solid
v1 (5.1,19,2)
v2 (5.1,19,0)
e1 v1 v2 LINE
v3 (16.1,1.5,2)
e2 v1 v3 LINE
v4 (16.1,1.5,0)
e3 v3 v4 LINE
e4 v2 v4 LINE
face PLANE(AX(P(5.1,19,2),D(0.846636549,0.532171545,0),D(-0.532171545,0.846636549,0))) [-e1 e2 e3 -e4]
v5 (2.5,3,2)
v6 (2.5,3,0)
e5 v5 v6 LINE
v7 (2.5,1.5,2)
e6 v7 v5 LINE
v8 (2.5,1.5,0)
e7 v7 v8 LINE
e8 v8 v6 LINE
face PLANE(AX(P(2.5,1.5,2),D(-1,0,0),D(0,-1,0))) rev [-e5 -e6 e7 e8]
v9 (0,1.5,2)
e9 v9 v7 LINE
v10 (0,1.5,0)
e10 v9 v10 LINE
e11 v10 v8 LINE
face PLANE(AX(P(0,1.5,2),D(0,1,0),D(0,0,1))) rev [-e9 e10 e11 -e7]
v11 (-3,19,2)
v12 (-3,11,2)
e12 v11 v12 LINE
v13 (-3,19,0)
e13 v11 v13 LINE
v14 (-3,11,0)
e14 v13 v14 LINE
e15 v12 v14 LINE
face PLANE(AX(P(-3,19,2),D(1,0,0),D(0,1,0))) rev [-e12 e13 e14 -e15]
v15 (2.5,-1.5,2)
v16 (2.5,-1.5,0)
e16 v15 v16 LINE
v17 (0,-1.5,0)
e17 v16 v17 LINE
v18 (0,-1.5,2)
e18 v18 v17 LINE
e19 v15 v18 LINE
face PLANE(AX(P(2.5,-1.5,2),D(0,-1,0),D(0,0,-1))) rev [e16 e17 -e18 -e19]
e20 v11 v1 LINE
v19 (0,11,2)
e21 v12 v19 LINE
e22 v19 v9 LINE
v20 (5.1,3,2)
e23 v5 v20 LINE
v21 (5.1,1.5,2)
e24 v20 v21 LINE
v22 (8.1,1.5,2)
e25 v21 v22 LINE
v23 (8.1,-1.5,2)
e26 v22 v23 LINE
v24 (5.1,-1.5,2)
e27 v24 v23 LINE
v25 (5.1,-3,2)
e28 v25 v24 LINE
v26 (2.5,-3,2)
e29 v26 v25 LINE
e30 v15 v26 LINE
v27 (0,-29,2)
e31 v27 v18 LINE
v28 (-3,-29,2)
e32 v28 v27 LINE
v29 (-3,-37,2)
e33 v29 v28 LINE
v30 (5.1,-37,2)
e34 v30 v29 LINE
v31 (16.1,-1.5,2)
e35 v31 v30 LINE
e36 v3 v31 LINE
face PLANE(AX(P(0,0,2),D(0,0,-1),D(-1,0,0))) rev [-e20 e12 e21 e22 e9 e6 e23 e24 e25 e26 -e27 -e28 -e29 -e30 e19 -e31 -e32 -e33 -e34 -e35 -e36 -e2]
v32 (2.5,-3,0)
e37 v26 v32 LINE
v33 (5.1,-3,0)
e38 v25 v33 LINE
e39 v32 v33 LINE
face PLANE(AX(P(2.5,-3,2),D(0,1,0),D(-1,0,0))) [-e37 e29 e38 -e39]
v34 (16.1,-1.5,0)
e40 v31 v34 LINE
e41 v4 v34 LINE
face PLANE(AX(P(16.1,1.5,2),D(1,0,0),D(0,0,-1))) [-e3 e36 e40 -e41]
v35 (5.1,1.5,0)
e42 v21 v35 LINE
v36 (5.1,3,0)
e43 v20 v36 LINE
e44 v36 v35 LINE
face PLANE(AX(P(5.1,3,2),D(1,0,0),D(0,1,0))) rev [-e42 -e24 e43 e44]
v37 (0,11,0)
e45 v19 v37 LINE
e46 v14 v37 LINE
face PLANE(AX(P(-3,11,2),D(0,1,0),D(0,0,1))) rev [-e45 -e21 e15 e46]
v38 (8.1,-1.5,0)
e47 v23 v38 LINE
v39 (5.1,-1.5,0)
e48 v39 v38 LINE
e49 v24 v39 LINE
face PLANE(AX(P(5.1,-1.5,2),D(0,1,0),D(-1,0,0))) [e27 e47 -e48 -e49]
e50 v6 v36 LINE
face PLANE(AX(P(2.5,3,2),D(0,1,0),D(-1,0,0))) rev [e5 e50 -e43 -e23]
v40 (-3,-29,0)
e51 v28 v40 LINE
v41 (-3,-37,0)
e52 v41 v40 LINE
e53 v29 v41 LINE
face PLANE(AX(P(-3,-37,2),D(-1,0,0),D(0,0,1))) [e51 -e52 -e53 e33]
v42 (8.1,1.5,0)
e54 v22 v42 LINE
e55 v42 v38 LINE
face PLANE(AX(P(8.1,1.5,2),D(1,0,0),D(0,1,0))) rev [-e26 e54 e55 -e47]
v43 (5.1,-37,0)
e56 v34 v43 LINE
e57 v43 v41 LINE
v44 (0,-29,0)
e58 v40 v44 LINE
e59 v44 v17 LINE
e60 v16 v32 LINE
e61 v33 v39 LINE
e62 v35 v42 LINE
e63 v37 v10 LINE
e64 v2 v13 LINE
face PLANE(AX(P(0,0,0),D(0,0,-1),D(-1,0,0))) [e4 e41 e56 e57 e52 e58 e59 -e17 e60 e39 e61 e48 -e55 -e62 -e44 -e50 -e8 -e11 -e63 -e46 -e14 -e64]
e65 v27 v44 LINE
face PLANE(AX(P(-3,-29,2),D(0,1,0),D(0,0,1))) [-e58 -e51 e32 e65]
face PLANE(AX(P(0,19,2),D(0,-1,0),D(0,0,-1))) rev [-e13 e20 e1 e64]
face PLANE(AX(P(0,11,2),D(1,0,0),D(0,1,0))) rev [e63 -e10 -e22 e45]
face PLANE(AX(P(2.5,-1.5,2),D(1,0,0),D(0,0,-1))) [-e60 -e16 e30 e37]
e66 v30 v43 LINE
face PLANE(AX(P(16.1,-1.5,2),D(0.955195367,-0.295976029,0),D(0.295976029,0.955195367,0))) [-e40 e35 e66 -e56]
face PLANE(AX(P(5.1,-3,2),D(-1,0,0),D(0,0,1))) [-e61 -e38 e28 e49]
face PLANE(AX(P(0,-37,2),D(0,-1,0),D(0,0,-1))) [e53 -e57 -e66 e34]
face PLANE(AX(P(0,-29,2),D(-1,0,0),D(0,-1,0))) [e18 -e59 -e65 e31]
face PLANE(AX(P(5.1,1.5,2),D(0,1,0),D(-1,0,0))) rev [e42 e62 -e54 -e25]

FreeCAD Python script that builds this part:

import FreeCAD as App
import Part
import Sketcher
Q = App.Units.Quantity

doc = App.newDocument("Part")
body = doc.addObject("PartDesign::Body", "Body")

# Sketch on XY plane
sketch1 = body.newObject("Sketcher::SketchObject", "Sketch")
sketch1.AttachmentSupport = (doc.getObject("XY_Plane"), [""])
sketch1.MapMode = "FlatFace"
sketch1.addGeometry(Part.LineSegment(App.Vector(2.5, -3, 0), App.Vector(2.5, -1.5, 0)), False)
sketch1.addGeometry(Part.LineSegment(App.Vector(2.5, -1.5, 0), App.Vector(0, -1.5, 0)), False)
sketch1.addGeometry(Part.LineSegment(App.Vector(0, -1.5, 0), App.Vector(0, -29, 0)), False)
sketch1.addGeometry(Part.LineSegment(App.Vector(0, -29, 0), App.Vector(-3, -29, 0)), False)
sketch1.addGeometry(Part.LineSegment(App.Vector(-3, -29, 0), App.Vector(-3, -37, 0)), False)
sketch1.addGeometry(Part.LineSegment(App.Vector(-3, -37, 0), App.Vector(5.1, -37, 0)), False)
sketch1.addGeometry(Part.LineSegment(App.Vector(5.1, -37, 0), App.Vector(16.1, -1.5, 0)), False)
sketch1.addGeometry(Part.LineSegment(App.Vector(16.1, -1.5, 0), App.Vector(16.1, 1.5, 0)), False)
sketch1.addGeometry(Part.LineSegment(App.Vector(16.1, 1.5, 0), App.Vector(5.1, 19, 0)), False)
sketch1.addGeometry(Part.LineSegment(App.Vector(5.1, 19, 0), App.Vector(-3, 19, 0)), False)
sketch1.addGeometry(Part.LineSegment(App.Vector(-3, 19, 0), App.Vector(-3, 11, 0)), False)
sketch1.addGeometry(Part.LineSegment(App.Vector(-3, 11, 0), App.Vector(0, 11, 0)), False)
sketch1.addGeometry(Part.LineSegment(App.Vector(0, 11, 0), App.Vector(0, 1.5, 0)), False)
sketch1.addGeometry(Part.LineSegment(App.Vector(0, 1.5, 0), App.Vector(2.5, 1.5, 0)), False)
sketch1.addGeometry(Part.LineSegment(App.Vector(2.5, 1.5, 0), App.Vector(2.5, 3, 0)), False)
sketch1.addGeometry(Part.LineSegment(App.Vector(2.5, 3, 0), App.Vector(5.1, 3, 0)), False)
sketch1.addGeometry(Part.LineSegment(App.Vector(5.1, 3, 0), App.Vector(5.1, 1.5, 0)), False)
sketch1.addGeometry(Part.LineSegment(App.Vector(5.1, 1.5, 0), App.Vector(8.1, 1.5, 0)), False)
sketch1.addGeometry(Part.LineSegment(App.Vector(8.1, 1.5, 0), App.Vector(8.1, -1.5, 0)), False)
sketch1.addGeometry(Part.LineSegment(App.Vector(8.1, -1.5, 0), App.Vector(5.1, -1.5, 0)), False)
sketch1.addGeometry(Part.LineSegment(App.Vector(5.1, -1.5, 0), App.Vector(5.1, -3, 0)), False)
sketch1.addGeometry(Part.LineSegment(App.Vector(5.1, -3, 0), App.Vector(2.5, -3, 0)), False)
sketch1.addConstraint(Sketcher.Constraint("Coincident", 0, 2, 1, 1))
sketch1.addConstraint(Sketcher.Constraint("Coincident", 1, 2, 2, 1))
sketch1.addConstraint(Sketcher.Constraint("Coincident", 2, 2, 3, 1))
sketch1.addConstraint(Sketcher.Constraint("Coincident", 3, 2, 4, 1))
sketch1.addConstraint(Sketcher.Constraint("Coincident", 4, 2, 5, 1))
sketch1.addConstraint(Sketcher.Constraint("Coincident", 5, 2, 6, 1))
sketch1.addConstraint(Sketcher.Constraint("Coincident", 6, 2, 7, 1))
sketch1.addConstraint(Sketcher.Constraint("Coincident", 7, 2, 8, 1))
sketch1.addConstraint(Sketcher.Constraint("Coincident", 8, 2, 9, 1))
sketch1.addConstraint(Sketcher.Constraint("Coincident", 9, 2, 10, 1))
sketch1.addConstraint(Sketcher.Constraint("Coincident", 10, 2, 11, 1))
sketch1.addConstraint(Sketcher.Constraint("Coincident", 11, 2, 12, 1))
sketch1.addConstraint(Sketcher.Constraint("Coincident", 12, 2, 13, 1))
sketch1.addConstraint(Sketcher.Constraint("Coincident", 13, 2, 14, 1))
sketch1.addConstraint(Sketcher.Constraint("Coincident", 14, 2, 15, 1))
sketch1.addConstraint(Sketcher.Constraint("Coincident", 15, 2, 16, 1))
sketch1.addConstraint(Sketcher.Constraint("Coincident", 16, 2, 17, 1))
sketch1.addConstraint(Sketcher.Constraint("Coincident", 17, 2, 18, 1))
sketch1.addConstraint(Sketcher.Constraint("Coincident", 18, 2, 19, 1))
sketch1.addConstraint(Sketcher.Constraint("Coincident", 19, 2, 20, 1))
sketch1.addConstraint(Sketcher.Constraint("Coincident", 20, 2, 21, 1))
sketch1.addConstraint(Sketcher.Constraint("Coincident", 21, 2, 0, 1))
sketch1.addConstraint(Sketcher.Constraint("Vertical", 0))
sketch1.addConstraint(Sketcher.Constraint("Horizontal", 1))
sketch1.addConstraint(Sketcher.Constraint("Vertical", 2))
sketch1.addConstraint(Sketcher.Constraint("Horizontal", 3))
sketch1.addConstraint(Sketcher.Constraint("Vertical", 4))
sketch1.addConstraint(Sketcher.Constraint("Horizontal", 5))
sketch1.addConstraint(Sketcher.Constraint("Vertical", 7))
sketch1.addConstraint(Sketcher.Constraint("Horizontal", 9))
sketch1.addConstraint(Sketcher.Constraint("Vertical", 10))
sketch1.addConstraint(Sketcher.Constraint("Horizontal", 11))
sketch1.addConstraint(Sketcher.Constraint("Vertical", 12))
sketch1.addConstraint(Sketcher.Constraint("Horizontal", 13))
sketch1.addConstraint(Sketcher.Constraint("Vertical", 14))
sketch1.addConstraint(Sketcher.Constraint("Horizontal", 15))
sketch1.addConstraint(Sketcher.Constraint("Vertical", 16))
sketch1.addConstraint(Sketcher.Constraint("Horizontal", 17))
sketch1.addConstraint(Sketcher.Constraint("Vertical", 18))
sketch1.addConstraint(Sketcher.Constraint("Horizontal", 19))
sketch1.addConstraint(Sketcher.Constraint("Vertical", 20))
sketch1.addConstraint(Sketcher.Constraint("Horizontal", 21))
sketch1.addConstraint(Sketcher.Constraint("Symmetric", 1, 2, 12, 2, -1, 1))
sketch1.addConstraint(Sketcher.Constraint("Symmetric", 16, 2, 19, 2, -1))
sketch1.addConstraint(Sketcher.Constraint("Symmetric", 14, 2, 21, 2, -1))
sketch1.addConstraint(Sketcher.Constraint("PointOnObject", 1, 2, -2))
sketch1.addConstraint(Sketcher.Constraint("Horizontal", 1, 2, 6, 2))
sketch1.addConstraint(Sketcher.Constraint("Horizontal", 7, 2, 12, 2))
sketch1.addConstraint(Sketcher.Constraint("Horizontal", 13, 2, 16, 2))
sketch1.addConstraint(Sketcher.Constraint("Vertical", 5, 2, 8, 2))
sketch1.addConstraint(Sketcher.Constraint("Vertical", 4, 2, 9, 2))
sketch1.addConstraint(Sketcher.Constraint("Vertical", 8, 2, 15, 2))
sketch1.addConstraint(Sketcher.Constraint("Equal", 11, 17))
sketch1.addConstraint(Sketcher.Constraint("Equal", 19, 7))
sketch1.addConstraint(Sketcher.Constraint("Equal", 4, 10))
sketch1.addConstraint(Sketcher.Constraint("DistanceX", 3, 2, 3, 1, Q("3 mm")))
sketch1.addConstraint(Sketcher.Constraint("DistanceY", 4, 2, 4, 1, Q("8 mm")))
sketch1.addConstraint(Sketcher.Constraint("DistanceX", 1, 2, 1, 1, Q("2.5 mm")))
sketch1.addConstraint(Sketcher.Constraint("DistanceX", 5, 1, 5, 2, Q("8.1 mm")))
sketch1.addConstraint(Sketcher.Constraint("DistanceY", 0, 1, 0, 2, Q("1.5 mm")))
sketch1.addConstraint(Sketcher.Constraint("DistanceY", 2, 2, 2, 1, Q("27.5 mm")))
sketch1.addConstraint(Sketcher.Constraint("DistanceY", 12, 2, 12, 1, Q("9.5 mm")))
sketch1.addConstraint(Sketcher.Constraint("DistanceX", 5, 2, 6, 2, Q("11 mm")))
pad1 = body.newObject("PartDesign::Pad", "Pad")
pad1.Profile = sketch1
pad1.Length = 2

doc.recompute()
